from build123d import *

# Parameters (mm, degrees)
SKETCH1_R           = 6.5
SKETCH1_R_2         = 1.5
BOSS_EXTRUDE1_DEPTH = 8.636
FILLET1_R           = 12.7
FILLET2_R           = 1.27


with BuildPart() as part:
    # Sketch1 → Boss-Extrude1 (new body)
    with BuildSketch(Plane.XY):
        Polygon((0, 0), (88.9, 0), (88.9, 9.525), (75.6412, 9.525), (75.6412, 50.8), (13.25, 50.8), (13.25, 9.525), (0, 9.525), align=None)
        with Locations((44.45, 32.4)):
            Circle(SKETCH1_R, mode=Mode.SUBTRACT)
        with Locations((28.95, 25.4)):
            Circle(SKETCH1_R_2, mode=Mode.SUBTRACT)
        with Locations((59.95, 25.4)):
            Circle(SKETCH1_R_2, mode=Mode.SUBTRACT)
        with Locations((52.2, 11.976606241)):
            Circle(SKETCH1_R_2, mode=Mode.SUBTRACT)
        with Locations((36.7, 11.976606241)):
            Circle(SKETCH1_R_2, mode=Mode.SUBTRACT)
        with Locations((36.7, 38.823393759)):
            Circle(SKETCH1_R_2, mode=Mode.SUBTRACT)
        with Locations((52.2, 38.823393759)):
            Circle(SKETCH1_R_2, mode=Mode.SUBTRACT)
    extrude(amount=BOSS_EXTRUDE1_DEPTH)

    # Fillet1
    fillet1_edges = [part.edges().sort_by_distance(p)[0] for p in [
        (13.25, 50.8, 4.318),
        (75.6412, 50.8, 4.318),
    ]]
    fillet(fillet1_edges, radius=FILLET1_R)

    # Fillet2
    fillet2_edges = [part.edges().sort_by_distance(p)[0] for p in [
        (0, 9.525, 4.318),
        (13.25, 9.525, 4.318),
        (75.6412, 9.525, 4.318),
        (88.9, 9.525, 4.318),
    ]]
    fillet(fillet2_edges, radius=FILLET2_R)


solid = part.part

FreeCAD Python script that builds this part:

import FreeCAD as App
import Part
import Sketcher
from FreeCAD import Vector
Q = App.Units.Quantity


def edges_at(feature, points):
    """Names of the edges that pass closest to the given points."""
    edges = feature.Shape.Edges
    near = lambda p: min(range(len(edges)), key=lambda i: edges[i].distToShape(Part.Vertex(*p))[0])
    return sorted({f"Edge{near(p) + 1}" for p in points})

doc = App.newDocument("Part")
body = doc.addObject("PartDesign::Body", "Body")

sketch1 = body.newObject("Sketcher::SketchObject", "Sketch")
sketch1.AttachmentSupport = (doc.getObject("XY_Plane"), [""])
sketch1.MapMode = "FlatFace"
sketch1.addGeometry([
    Part.LineSegment(Vector(0, 0, 0), Vector(88.9, 0, 0)),
    Part.LineSegment(Vector(88.9, 0, 0), Vector(88.9, 9.5, 0)),
    Part.LineSegment(Vector(88.9, 9.5, 0), Vector(75.6, 9.5, 0)),
    Part.LineSegment(Vector(75.6, 9.5, 0), Vector(75.6, 50.8, 0)),
    Part.LineSegment(Vector(75.6, 50.8, 0), Vector(13.2, 50.8, 0)),
    Part.LineSegment(Vector(13.2, 50.8, 0), Vector(13.2, 9.5, 0)),
    Part.LineSegment(Vector(13.2, 9.5, 0), Vector(0, 9.5, 0)),
    Part.LineSegment(Vector(0, 9.5, 0), Vector(0, 0, 0)),
    Part.Circle(Vector(36.7, 12, 0), Vector(0, 0, 1), 1.5),
    Part.Circle(Vector(28.9, 25.4, 0), Vector(0, 0, 1), 1.5),
    Part.Circle(Vector(52.2, 12, 0), Vector(0, 0, 1), 1.5),
    Part.Circle(Vector(60, 25.4, 0), Vector(0, 0, 1), 1.5),
    Part.Circle(Vector(36.7, 38.8, 0), Vector(0, 0, 1), 1.5),
    Part.Circle(Vector(44.5, 32.4, 0), Vector(0, 0, 1), 6.5),
    Part.Circle(Vector(52.2, 38.8, 0), Vector(0, 0, 1), 1.5),
], False)
sketch1.addConstraint([
    Sketcher.Constraint("Coincident", 0, 2, 1, 1),
    Sketcher.Constraint("Coincident", 1, 2, 2, 1),
    Sketcher.Constraint("Coincident", 2, 2, 3, 1),
    Sketcher.Constraint("Coincident", 3, 2, 4, 1),
    Sketcher.Constraint("Coincident", 4, 2, 5, 1),
    Sketcher.Constraint("Coincident", 5, 2, 6, 1),
    Sketcher.Constraint("Coincident", 6, 2, 7, 1),
    Sketcher.Constraint("Coincident", 7, 2, 0, 1),
    Sketcher.Constraint("Horizontal", 0),
    Sketcher.Constraint("Vertical", 1),
    Sketcher.Constraint("Horizontal", 2),
    Sketcher.Constraint("Vertical", 3),
    Sketcher.Constraint("Horizontal", 4),
    Sketcher.Constraint("Vertical", 5),
    Sketcher.Constraint("Horizontal", 6),
    Sketcher.Constraint("Vertical", 7),
    Sketcher.Constraint("Coincident", 7, 2, -1, 1),
    Sketcher.Constraint("Equal", 8, 9),
    Sketcher.Constraint("Equal", 9, 10),
    Sketcher.Constraint("Equal", 10, 11),
    Sketcher.Constraint("Equal", 11, 12),
    Sketcher.Constraint("Equal", 12, 14),
    Sketcher.Constraint("Horizontal", 8, 3, 10, 3),
    Sketcher.Constraint("Horizontal", 9, 3, 11, 3),
    Sketcher.Constraint("Horizontal", 12, 3, 14, 3),
    Sketcher.Constraint("Horizontal", 2, 2, 5, 2),
    Sketcher.Constraint("Vertical", 8, 3, 12, 3),
    Sketcher.Constraint("Vertical", 10, 3, 14, 3),
    Sketcher.Constraint("DistanceX", 0, 1, 0, 2, Q("3.5 in")),
    Sketcher.Constraint("DistanceY", -1, 1, 9, 3, Q("1 in")),
    Sketcher.Constraint("DistanceY", -1, 1, 3, 2, Q("2 in")),
    Sketcher.Constraint("Diameter", 8, 3.0),
    Sketcher.Constraint("Diameter", 13, 13.0),
    Sketcher.Constraint("DistanceX", 2, 2, 2, 1, Q("0.522 in")),
    Sketcher.Constraint("DistanceY", 1, 1, 1, 2, Q("0.375 in")),
    Sketcher.Constraint("DistanceX", -1, 1, 13, 3, Q("1.75 in")),
    Sketcher.Constraint("DistanceX", 4, 2, 4, 1, 62.3912),
    Sketcher.Constraint("DistanceX", -1, 1, 8, 3, 36.7),
    Sketcher.Constraint("DistanceX", -1, 1, 9, 3, 28.95),
    Sketcher.Constraint("DistanceX", -1, 1, 10, 3, 52.2),
    Sketcher.Constraint("DistanceX", -1, 1, 11, 3, 59.95),
    Sketcher.Constraint("DistanceY", -1, 1, 13, 3, 32.4),
    Sketcher.Constraint("DistanceY", -1, 1, 8, 3, 11.976606),
    Sketcher.Constraint("DistanceY", -1, 1, 12, 3, 38.823394),
])
pad1 = body.newObject("PartDesign::Pad", "Pad")
pad1.Profile = sketch1
pad1.Length = Q("0.34 in")
doc.recompute()

fillet = body.newObject("PartDesign::Fillet", "Fillet")
fillet.Base = (pad1, edges_at(pad1, [(13.25, 50.8, 4.318), (75.641, 50.8, 4.318)]))
fillet.Radius = Q("0.5 in")
doc.recompute()

fillet2 = body.newObject("PartDesign::Fillet", "Fillet001")
fillet2.Base = (fillet, edges_at(fillet, [
    (0, 9.525, 4.318),
    (13.25, 9.525, 4.318),
    (75.641, 9.525, 4.318),
    (88.9, 9.525, 4.318),
]))
fillet2.Radius = Q("0.05 in")

doc.recompute()
